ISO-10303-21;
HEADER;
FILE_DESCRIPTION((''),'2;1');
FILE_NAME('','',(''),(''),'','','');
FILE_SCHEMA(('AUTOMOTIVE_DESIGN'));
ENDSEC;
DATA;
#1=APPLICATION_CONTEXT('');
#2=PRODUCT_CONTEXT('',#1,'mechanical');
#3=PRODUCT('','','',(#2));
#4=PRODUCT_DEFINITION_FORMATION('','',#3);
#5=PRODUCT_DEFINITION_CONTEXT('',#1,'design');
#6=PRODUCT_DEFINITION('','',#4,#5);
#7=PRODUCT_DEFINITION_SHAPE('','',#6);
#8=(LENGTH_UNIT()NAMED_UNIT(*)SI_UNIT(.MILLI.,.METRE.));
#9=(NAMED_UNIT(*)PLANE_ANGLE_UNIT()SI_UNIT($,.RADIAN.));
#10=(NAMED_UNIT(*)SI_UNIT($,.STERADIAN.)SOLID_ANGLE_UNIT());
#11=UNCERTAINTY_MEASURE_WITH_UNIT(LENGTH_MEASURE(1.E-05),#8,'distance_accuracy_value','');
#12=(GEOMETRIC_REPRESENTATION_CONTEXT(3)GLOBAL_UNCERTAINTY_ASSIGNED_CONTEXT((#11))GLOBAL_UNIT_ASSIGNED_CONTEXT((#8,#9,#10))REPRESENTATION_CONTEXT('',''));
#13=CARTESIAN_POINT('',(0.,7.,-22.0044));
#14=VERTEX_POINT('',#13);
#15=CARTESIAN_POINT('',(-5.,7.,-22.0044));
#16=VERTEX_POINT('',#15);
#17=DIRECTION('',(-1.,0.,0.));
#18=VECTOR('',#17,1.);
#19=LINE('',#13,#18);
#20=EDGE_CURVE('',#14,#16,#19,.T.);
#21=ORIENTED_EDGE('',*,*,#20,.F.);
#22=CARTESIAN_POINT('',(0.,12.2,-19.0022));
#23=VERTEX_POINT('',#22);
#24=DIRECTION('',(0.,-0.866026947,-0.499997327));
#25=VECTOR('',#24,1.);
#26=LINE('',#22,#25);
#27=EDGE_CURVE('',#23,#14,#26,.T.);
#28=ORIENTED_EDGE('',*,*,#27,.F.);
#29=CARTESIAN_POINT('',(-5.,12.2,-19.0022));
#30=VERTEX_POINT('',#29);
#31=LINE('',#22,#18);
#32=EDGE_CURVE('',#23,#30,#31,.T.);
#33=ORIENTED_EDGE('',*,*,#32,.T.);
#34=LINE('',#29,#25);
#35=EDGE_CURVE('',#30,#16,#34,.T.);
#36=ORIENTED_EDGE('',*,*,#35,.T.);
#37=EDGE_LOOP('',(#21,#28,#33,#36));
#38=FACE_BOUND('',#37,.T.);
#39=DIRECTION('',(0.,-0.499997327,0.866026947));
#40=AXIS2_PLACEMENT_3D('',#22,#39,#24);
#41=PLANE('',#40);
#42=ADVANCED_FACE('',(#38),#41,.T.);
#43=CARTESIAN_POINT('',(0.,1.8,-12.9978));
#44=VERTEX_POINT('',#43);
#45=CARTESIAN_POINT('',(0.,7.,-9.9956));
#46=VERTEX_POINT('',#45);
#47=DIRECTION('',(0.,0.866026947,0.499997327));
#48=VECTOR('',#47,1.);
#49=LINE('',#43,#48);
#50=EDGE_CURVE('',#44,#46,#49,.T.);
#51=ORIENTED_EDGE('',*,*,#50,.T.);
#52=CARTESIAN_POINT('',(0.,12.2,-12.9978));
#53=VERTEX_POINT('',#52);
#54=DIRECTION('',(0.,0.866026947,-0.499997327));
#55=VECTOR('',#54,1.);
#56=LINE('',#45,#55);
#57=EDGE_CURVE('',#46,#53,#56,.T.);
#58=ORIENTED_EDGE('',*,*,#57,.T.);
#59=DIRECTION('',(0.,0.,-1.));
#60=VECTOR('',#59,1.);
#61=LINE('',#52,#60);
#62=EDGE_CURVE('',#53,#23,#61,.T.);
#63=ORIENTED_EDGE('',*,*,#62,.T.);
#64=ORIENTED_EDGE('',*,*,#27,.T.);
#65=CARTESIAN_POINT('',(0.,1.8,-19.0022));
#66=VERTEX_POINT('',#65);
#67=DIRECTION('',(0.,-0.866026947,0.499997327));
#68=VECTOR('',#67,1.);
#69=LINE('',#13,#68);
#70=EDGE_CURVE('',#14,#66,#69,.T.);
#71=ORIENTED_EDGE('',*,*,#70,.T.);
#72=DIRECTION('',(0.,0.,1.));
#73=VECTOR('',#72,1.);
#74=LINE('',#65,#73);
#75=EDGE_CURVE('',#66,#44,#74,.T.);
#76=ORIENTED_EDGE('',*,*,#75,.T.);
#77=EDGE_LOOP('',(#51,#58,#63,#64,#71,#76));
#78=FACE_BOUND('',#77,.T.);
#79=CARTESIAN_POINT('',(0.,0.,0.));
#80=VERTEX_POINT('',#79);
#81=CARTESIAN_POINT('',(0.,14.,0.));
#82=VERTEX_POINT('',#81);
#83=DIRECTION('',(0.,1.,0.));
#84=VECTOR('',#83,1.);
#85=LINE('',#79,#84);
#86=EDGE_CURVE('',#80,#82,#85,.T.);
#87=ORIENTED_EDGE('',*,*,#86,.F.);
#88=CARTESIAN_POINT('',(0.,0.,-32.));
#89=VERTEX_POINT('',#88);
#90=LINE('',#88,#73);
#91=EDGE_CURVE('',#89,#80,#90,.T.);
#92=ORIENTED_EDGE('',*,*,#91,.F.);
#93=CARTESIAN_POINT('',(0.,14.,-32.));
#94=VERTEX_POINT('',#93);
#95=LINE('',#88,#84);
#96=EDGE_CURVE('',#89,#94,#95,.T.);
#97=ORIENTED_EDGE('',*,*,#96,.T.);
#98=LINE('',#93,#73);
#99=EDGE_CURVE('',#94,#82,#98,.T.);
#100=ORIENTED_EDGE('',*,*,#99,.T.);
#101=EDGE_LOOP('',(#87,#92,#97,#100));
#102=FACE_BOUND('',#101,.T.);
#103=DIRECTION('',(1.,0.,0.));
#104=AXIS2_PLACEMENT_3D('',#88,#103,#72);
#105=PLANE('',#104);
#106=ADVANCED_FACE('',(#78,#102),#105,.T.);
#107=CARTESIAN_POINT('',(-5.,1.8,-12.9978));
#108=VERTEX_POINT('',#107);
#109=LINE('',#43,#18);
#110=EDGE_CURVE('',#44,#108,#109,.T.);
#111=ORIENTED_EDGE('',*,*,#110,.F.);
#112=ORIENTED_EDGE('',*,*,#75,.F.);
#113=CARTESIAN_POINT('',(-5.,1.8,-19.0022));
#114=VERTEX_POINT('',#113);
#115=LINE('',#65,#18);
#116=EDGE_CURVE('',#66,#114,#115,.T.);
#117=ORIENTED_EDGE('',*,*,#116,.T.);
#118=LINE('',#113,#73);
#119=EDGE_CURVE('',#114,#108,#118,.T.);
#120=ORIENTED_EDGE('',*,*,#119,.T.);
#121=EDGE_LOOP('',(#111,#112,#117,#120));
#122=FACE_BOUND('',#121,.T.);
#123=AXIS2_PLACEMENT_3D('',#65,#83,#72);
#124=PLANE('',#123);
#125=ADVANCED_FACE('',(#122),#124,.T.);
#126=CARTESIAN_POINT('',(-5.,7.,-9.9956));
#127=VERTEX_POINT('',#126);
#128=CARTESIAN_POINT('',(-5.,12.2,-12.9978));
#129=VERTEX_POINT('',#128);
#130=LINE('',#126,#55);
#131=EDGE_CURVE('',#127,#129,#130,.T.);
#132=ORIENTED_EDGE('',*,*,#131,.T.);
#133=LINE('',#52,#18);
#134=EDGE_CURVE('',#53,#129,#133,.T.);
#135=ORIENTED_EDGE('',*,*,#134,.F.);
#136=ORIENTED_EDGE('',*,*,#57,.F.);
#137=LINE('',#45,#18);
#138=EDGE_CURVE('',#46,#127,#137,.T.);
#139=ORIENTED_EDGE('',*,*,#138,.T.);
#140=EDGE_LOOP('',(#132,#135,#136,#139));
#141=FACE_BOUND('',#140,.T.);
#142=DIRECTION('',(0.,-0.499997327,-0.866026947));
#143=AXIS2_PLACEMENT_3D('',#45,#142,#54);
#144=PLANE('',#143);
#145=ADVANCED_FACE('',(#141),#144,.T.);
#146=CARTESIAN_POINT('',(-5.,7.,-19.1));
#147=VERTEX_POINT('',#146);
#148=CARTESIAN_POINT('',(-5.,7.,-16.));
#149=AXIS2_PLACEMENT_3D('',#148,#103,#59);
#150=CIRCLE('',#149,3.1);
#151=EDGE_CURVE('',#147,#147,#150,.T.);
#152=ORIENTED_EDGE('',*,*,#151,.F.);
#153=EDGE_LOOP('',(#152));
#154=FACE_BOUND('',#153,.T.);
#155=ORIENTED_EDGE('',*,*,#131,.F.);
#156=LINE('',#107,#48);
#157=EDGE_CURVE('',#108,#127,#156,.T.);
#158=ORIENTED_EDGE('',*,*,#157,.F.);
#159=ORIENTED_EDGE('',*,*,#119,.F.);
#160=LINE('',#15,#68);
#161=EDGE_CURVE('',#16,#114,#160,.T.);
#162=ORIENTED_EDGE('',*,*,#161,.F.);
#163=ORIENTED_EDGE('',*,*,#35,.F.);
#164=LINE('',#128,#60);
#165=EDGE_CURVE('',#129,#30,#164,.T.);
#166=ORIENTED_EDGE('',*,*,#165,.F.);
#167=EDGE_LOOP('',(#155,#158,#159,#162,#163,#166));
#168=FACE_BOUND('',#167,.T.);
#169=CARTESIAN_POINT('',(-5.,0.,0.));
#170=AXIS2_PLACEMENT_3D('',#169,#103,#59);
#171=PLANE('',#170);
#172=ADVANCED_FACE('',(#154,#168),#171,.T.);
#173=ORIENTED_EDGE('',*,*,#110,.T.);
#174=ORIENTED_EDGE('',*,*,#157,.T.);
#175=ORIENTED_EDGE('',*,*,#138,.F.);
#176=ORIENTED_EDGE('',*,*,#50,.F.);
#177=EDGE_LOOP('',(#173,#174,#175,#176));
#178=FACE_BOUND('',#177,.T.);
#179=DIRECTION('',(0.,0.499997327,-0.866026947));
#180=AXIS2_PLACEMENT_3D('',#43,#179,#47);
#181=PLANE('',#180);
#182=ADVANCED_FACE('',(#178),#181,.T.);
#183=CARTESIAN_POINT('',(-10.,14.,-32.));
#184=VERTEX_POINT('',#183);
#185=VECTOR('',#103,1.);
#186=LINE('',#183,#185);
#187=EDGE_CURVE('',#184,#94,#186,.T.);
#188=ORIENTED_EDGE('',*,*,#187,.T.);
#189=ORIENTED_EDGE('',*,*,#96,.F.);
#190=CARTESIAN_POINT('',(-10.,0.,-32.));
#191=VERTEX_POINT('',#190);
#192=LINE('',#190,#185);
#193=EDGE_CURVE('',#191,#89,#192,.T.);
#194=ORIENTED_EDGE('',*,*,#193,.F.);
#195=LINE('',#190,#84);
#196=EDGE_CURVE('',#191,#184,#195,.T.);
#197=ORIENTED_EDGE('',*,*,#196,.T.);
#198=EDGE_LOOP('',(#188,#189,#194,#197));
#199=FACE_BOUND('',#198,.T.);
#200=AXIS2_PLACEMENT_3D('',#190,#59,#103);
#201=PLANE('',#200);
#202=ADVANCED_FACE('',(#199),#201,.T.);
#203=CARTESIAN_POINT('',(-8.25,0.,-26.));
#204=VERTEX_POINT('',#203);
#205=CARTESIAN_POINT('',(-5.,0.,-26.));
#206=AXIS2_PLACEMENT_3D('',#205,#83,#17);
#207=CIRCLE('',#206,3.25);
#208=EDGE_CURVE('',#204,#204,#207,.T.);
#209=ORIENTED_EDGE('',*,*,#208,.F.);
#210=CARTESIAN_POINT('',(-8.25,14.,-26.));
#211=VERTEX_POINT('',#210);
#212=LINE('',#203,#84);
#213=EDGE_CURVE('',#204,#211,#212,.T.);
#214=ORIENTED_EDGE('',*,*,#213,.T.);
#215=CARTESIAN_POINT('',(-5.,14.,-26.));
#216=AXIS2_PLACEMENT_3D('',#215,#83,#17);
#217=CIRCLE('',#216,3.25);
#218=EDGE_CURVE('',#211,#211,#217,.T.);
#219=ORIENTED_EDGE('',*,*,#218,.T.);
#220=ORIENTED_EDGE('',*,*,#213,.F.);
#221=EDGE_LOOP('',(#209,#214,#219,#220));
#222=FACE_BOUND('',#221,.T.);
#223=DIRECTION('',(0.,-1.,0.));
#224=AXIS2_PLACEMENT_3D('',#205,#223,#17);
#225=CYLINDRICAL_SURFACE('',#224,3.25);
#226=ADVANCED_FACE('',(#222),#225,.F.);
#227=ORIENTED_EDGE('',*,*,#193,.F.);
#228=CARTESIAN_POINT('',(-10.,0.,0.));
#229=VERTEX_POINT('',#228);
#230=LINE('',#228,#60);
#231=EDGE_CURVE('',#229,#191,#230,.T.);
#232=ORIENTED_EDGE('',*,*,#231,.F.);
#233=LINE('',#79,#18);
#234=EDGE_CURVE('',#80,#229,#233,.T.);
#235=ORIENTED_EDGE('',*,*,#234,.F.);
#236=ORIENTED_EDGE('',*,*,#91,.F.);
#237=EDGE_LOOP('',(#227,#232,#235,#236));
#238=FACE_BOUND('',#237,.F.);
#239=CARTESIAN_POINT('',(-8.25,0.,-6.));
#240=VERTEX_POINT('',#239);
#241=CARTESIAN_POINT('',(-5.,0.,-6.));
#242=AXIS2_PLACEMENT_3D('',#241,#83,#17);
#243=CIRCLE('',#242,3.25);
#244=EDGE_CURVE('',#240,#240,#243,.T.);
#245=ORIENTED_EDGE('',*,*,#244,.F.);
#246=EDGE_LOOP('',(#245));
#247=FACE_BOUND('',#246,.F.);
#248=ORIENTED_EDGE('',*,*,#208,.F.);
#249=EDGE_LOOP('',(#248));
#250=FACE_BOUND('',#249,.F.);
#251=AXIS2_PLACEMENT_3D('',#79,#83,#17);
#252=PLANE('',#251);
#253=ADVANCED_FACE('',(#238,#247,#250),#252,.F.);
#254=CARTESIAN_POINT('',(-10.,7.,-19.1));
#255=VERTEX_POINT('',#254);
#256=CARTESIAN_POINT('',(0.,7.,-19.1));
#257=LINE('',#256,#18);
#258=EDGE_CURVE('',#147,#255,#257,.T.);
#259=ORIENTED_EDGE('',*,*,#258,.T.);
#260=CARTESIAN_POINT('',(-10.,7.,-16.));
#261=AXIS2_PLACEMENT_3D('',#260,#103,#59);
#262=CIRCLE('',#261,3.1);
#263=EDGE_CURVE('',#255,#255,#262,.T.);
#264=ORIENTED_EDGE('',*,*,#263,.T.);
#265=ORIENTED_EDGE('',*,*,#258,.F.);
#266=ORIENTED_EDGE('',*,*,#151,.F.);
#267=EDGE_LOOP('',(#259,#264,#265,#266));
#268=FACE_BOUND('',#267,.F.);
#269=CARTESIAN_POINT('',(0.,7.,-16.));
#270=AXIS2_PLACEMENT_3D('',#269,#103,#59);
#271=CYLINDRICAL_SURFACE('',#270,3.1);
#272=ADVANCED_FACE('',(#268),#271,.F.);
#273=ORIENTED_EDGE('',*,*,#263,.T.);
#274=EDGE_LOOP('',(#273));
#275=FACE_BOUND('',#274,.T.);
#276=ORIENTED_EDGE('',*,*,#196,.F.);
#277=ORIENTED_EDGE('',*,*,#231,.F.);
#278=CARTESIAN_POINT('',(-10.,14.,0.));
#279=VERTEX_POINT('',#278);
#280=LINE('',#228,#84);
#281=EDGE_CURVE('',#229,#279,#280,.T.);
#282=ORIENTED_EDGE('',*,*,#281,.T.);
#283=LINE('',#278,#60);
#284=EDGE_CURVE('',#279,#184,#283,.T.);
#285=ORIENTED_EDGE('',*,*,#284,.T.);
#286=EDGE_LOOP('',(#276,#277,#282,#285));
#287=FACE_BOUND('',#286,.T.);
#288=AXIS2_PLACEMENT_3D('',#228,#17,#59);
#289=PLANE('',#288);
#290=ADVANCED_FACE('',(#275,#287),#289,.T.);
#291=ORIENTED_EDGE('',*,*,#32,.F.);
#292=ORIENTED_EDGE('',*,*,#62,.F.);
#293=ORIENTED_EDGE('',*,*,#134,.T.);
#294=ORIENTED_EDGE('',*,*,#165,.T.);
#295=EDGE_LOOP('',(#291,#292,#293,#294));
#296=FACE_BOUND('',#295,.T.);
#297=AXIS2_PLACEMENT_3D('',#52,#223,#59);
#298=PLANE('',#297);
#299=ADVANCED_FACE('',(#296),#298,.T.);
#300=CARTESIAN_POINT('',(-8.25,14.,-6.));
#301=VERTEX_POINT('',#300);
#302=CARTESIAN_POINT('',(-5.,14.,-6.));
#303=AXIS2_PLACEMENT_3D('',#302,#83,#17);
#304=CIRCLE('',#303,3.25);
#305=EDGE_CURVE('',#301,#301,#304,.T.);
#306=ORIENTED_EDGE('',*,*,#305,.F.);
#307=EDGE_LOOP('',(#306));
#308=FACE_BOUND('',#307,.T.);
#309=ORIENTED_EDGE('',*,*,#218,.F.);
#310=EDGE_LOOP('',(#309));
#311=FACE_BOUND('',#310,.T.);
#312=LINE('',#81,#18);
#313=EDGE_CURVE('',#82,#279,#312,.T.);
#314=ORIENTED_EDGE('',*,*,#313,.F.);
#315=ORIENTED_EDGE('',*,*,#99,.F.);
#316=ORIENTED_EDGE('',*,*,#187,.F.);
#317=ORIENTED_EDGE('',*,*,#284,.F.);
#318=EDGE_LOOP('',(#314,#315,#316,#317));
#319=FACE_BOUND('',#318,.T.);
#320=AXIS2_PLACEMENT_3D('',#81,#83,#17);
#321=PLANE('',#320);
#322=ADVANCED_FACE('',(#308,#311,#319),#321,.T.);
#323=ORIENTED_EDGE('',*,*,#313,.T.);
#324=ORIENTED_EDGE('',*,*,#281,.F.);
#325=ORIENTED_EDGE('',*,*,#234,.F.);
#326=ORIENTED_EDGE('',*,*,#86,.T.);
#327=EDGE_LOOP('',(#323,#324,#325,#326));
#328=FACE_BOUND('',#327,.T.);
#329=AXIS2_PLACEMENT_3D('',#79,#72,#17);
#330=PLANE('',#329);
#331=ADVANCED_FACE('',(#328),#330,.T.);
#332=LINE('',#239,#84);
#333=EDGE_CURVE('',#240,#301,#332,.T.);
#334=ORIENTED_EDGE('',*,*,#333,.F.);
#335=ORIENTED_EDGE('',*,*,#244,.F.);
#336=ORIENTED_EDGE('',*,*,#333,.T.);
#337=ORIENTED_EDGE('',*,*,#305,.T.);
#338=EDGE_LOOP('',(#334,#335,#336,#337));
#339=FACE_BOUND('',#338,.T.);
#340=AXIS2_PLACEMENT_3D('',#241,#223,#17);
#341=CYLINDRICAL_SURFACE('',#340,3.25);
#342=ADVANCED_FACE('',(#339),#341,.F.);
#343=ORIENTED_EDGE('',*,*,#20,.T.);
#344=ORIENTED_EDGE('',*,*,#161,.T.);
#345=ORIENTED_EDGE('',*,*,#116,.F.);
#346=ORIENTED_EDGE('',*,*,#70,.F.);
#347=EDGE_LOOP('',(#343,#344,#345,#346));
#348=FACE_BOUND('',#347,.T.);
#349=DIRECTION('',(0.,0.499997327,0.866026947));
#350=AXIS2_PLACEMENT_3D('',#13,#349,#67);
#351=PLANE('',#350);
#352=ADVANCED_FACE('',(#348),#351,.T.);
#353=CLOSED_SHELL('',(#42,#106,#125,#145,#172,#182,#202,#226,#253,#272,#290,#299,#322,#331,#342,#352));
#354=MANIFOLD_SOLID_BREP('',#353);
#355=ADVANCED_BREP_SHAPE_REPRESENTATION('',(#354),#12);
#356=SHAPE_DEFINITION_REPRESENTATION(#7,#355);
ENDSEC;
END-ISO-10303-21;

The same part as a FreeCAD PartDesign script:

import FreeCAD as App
import Part
import Sketcher
Q = App.Units.Quantity


def add_polygon(sketch, points):
    """Adds a closed chain of lines whose ends are joined by coincident constraints."""
    first, n = sketch.GeometryCount, len(points)
    for a, b in zip(points, points[1:] + points[:1]):
        sketch.addGeometry(Part.LineSegment(App.Vector(*a, 0), App.Vector(*b, 0)), False)
    for i in range(n):
        sketch.addConstraint(Sketcher.Constraint("Coincident", first + i, 2, first + (i + 1) % n, 1))

doc = App.newDocument("Part")
params = doc.addObject("Spreadsheet::Sheet", "Params")
for row, (alias, value) in enumerate([
    ("sketch1_diameter", "6.5 mm"),
    ("sketch1_width", "10 mm"),
    ("sketch1_height", "32 mm"),
    ("pad1_length", "14 mm"),
    ("sketch2_diameter", "6.2 mm"),
    ("sketch3_diameter", "6.2 mm"),
    ("pocket2_length", "5 mm"),
], start=1):
    params.set(f"A{row}", alias)
    params.set(f"B{row}", "=" + value)
    params.setAlias(f"B{row}", alias)

body = doc.addObject("PartDesign::Body", "Body")

sketch1 = body.newObject("Sketcher::SketchObject", "Sketch")
sketch1.AttachmentSupport = (doc.getObject("XZ_Plane"), [""])
sketch1.MapMode = "FlatFace"
add_polygon(sketch1, [(-10, 0), (0, 0), (0, -32), (-10, -32)])
sketch1.addGeometry(Part.Circle(App.Vector(-5, -26, 0), App.Vector(0, 0, 1), 3.2), False)
sketch1.addGeometry(Part.Circle(App.Vector(-5, -6, 0), App.Vector(0, 0, 1), 3.2), False)
sketch1.addConstraint(Sketcher.Constraint("Horizontal", 0))
sketch1.addConstraint(Sketcher.Constraint("Vertical", 1))
sketch1.addConstraint(Sketcher.Constraint("Horizontal", 2))
sketch1.addConstraint(Sketcher.Constraint("Vertical", 3))
sketch1.addConstraint(Sketcher.Constraint("Coincident", 0, 2, -1, 1))
sketch1.addConstraint(Sketcher.Constraint("Equal", 4, 5))
sketch1.addConstraint(Sketcher.Constraint("Vertical", 4, 3, 5, 3))
sketch1.addConstraint(Sketcher.Constraint("Diameter", 4, 6.5))
sketch1.addConstraint(Sketcher.Constraint("DistanceX", 0, 1, 0, 2, 10.0))
sketch1.addConstraint(Sketcher.Constraint("DistanceY", 1, 2, 1, 1, 32.0))
sketch1.addConstraint(Sketcher.Constraint("DistanceX", 4, 3, -1, 1, 5.0))
sketch1.addConstraint(Sketcher.Constraint("DistanceY", 5, 3, -1, 1, 6.0))
sketch1.addConstraint(Sketcher.Constraint("DistanceY", 1, 2, 4, 3, 6.0))
sketch1.setExpression("Constraints[11]", "Params.sketch1_diameter")
sketch1.setExpression("Constraints[12]", "Params.sketch1_width")
sketch1.setExpression("Constraints[13]", "Params.sketch1_height")
pad1 = body.newObject("PartDesign::Pad", "Pad")
pad1.Profile = sketch1
pad1.setExpression("Length", "Params.pad1_length")
pad1.Reversed = True

sketch2 = body.newObject("Sketcher::SketchObject", "Sketch001")
sketch2.AttachmentSupport = (doc.getObject("YZ_Plane"), [""])
sketch2.MapMode = "FlatFace"
sketch2.addGeometry(Part.Circle(App.Vector(7, -16, 0), App.Vector(0, 0, 1), 3.1), False)
sketch2.addConstraint(Sketcher.Constraint("Diameter", 0, 6.2))
sketch2.addConstraint(Sketcher.Constraint("DistanceX", -1, 1, 0, 3, 7.0))
sketch2.addConstraint(Sketcher.Constraint("DistanceY", 0, 3, -1, 1, 16.0))
sketch2.setExpression("Constraints[0]", "Params.sketch2_diameter")
pocket1 = body.newObject("PartDesign::Pocket", "Pocket")
pocket1.Profile = sketch2
pocket1.Type = "UpToFirst"

sketch3 = body.newObject("Sketcher::SketchObject", "Sketch002")
sketch3.AttachmentSupport = (doc.getObject("YZ_Plane"), [""])
sketch3.MapMode = "FlatFace"
add_polygon(sketch3, [(1.8, -19), (7, -22), (12.2, -19), (12.2, -13), (7, -10), (1.8, -13)])
sketch3.addGeometry(Part.Circle(App.Vector(7, -16, 0), App.Vector(0, 0, 1), 3.1), False)
sketch3.addConstraint(Sketcher.Constraint("Vertical", 2))
sketch3.addConstraint(Sketcher.Constraint("Vertical", 5))
sketch3.addConstraint(Sketcher.Constraint("Parallel", 0, 3))
sketch3.addConstraint(Sketcher.Constraint("Parallel", 1, 4))
sketch3.addConstraint(Sketcher.Constraint("Horizontal", 2, 2, 4, 2))
sketch3.addConstraint(Sketcher.Constraint("Horizontal", 1, 2, 5, 2))
sketch3.addConstraint(Sketcher.Constraint("Vertical", 6, 3, 0, 2))
sketch3.addConstraint(Sketcher.Constraint("Vertical", 0, 2, 3, 2))
sketch3.addConstraint(Sketcher.Constraint("Diameter", 6, 6.2))
sketch3.addConstraint(Sketcher.Constraint("DistanceX", 4, 2, 2, 2, 10.4))
sketch3.addConstraint(Sketcher.Constraint("Angle", 0, Q("-29.9998 deg")))
sketch3.addConstraint(Sketcher.Constraint("DistanceX", -1, 1, 6, 3, 7.0))
sketch3.addConstraint(Sketcher.Constraint("DistanceY", 6, 3, -1, 1, 16.0))
sketch3.addConstraint(Sketcher.Constraint("DistanceY", 2, 1, 2, 2, 6.0044))
sketch3.addConstraint(Sketcher.Constraint("DistanceY", 0, 2, -1, 1, 22.0044))
sketch3.setExpression("Constraints[14]", "Params.sketch3_diameter")
pocket2 = body.newObject("PartDesign::Pocket", "Pocket001")
pocket2.Profile = sketch3
pocket2.setExpression("Length", "Params.pocket2_length")

doc.recompute()
